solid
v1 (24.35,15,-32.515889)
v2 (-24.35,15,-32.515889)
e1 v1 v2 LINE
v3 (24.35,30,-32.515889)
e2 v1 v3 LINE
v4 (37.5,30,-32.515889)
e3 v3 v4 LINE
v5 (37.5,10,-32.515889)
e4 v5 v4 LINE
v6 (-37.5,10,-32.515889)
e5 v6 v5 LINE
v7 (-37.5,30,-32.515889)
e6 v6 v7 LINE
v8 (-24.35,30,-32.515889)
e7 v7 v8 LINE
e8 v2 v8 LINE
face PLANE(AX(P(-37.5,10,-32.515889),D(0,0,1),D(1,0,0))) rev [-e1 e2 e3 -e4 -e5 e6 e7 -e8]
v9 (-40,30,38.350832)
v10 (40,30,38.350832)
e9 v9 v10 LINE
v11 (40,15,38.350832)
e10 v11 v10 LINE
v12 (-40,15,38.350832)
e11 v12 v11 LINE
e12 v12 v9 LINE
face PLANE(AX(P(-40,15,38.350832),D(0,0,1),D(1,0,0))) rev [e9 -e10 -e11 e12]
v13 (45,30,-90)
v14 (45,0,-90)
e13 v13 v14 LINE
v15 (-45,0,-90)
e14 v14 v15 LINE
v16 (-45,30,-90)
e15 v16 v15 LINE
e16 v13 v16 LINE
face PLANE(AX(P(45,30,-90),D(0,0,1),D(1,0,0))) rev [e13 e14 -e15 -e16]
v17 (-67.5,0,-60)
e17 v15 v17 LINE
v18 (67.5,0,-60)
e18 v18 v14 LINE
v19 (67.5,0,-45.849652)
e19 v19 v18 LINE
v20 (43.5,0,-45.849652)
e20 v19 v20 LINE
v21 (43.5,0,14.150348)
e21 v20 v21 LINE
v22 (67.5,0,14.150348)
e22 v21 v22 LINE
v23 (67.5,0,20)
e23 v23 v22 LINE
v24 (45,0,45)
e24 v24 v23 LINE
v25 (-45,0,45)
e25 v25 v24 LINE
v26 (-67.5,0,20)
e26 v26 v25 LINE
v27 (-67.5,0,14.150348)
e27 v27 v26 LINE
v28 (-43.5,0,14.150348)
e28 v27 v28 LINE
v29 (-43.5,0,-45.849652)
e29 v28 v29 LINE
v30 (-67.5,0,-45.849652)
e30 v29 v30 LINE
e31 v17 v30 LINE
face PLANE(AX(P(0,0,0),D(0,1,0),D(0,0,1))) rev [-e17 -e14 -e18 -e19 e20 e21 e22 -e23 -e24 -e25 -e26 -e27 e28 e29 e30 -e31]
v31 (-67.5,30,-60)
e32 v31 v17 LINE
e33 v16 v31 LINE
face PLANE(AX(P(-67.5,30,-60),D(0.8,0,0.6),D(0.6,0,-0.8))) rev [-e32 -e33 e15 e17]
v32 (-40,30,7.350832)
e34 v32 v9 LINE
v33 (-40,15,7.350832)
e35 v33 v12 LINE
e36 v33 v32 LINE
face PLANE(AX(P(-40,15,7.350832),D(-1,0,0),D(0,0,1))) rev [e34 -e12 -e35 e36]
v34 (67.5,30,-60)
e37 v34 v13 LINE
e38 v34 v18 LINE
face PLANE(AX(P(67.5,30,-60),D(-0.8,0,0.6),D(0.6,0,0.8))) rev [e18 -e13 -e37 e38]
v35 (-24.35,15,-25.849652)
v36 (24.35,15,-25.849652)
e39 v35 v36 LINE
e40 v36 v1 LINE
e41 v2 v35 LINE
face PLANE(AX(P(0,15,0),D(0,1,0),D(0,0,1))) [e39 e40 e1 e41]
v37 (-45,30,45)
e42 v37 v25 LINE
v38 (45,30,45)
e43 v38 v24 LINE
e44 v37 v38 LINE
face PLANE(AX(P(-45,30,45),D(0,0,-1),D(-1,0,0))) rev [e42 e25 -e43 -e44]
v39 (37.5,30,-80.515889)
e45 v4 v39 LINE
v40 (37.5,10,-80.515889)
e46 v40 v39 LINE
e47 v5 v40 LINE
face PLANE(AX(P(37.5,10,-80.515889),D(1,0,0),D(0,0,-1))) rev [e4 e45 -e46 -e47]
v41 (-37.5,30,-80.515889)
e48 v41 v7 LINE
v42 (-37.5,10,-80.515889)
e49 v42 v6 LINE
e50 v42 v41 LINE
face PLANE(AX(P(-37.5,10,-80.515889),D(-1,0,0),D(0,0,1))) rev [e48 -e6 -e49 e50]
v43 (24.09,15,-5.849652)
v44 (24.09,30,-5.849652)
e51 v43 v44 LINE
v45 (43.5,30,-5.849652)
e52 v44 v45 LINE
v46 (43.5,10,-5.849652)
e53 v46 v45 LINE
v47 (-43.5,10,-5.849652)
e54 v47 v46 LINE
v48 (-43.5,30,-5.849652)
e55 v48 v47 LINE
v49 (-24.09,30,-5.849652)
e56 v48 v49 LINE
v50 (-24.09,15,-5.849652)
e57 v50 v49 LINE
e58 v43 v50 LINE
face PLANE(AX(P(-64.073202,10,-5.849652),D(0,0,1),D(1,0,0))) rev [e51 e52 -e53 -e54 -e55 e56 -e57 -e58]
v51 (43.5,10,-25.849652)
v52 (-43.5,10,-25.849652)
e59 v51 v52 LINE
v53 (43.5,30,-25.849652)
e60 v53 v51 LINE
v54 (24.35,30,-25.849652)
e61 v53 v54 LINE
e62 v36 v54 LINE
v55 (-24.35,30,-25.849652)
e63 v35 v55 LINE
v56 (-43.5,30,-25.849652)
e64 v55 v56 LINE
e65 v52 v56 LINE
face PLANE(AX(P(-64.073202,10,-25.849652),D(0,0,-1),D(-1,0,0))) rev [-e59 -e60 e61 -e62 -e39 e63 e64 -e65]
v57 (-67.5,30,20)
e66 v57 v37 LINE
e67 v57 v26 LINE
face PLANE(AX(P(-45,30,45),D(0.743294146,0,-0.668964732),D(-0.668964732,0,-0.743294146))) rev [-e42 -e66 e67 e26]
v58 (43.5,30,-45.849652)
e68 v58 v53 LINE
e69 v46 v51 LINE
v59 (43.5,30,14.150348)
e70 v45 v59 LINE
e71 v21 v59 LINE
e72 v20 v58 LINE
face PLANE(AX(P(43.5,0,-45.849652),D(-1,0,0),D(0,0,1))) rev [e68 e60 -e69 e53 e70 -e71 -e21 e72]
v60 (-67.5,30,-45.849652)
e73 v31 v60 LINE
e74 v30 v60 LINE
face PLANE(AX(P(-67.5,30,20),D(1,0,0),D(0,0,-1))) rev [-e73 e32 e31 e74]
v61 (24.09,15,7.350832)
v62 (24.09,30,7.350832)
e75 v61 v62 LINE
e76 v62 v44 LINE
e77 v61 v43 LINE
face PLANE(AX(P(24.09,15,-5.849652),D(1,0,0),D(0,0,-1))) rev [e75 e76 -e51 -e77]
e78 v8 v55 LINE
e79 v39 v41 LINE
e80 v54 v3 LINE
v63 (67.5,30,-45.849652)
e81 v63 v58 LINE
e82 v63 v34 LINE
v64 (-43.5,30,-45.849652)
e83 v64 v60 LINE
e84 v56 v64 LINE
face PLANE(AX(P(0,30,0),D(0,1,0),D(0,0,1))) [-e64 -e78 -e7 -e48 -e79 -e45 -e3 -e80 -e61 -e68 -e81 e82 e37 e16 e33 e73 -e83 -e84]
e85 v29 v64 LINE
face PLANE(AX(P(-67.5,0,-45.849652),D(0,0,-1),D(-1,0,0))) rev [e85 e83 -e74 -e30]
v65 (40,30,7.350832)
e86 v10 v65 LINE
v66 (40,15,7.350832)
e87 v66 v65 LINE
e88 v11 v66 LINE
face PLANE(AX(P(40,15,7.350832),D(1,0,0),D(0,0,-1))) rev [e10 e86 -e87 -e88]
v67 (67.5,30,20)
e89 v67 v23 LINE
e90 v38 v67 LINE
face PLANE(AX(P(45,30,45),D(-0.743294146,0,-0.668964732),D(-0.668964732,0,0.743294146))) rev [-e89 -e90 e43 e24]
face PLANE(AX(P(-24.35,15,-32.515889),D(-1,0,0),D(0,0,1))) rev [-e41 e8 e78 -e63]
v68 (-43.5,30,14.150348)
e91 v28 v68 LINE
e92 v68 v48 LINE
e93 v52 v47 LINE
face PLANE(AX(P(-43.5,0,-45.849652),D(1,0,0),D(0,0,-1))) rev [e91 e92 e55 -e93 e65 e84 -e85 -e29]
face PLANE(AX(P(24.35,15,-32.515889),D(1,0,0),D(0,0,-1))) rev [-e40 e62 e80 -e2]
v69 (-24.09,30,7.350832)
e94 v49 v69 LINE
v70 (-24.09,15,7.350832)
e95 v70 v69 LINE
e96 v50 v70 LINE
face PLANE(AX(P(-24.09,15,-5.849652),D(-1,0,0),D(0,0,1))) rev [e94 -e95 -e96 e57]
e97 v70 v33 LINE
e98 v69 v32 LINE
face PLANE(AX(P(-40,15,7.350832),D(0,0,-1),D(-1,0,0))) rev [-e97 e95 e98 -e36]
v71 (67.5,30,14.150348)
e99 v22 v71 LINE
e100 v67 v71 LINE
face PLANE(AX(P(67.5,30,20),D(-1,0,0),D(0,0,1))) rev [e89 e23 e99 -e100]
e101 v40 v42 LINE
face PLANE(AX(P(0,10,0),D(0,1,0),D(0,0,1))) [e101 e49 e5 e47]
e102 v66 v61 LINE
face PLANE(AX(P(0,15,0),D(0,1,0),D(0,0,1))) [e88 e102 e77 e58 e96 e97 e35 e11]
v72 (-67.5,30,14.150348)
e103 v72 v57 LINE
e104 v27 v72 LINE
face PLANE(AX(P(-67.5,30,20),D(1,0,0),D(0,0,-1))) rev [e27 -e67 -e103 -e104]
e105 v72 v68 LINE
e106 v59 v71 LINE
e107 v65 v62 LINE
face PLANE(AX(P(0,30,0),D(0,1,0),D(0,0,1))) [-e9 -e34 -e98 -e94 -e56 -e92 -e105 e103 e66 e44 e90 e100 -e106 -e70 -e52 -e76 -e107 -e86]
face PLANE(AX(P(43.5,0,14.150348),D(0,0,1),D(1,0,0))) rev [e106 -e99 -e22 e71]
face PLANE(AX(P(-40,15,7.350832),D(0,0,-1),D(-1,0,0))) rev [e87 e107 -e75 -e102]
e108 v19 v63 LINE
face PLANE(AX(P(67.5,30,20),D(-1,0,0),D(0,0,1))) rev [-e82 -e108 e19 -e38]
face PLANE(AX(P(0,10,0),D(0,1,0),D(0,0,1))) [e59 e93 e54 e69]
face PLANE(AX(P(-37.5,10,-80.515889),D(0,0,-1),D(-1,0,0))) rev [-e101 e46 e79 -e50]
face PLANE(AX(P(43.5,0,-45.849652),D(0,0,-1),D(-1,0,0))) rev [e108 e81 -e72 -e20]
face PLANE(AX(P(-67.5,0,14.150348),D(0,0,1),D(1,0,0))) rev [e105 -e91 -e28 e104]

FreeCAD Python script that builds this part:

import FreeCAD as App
import Part
import Sketcher


def add_polygon(sketch, points):
    """Adds a closed chain of lines whose ends are joined by coincident constraints."""
    first, n = sketch.GeometryCount, len(points)
    for a, b in zip(points, points[1:] + points[:1]):
        sketch.addGeometry(Part.LineSegment(App.Vector(*a, 0), App.Vector(*b, 0)), False)
    for i in range(n):
        sketch.addConstraint(Sketcher.Constraint("Coincident", first + i, 2, first + (i + 1) % n, 1))

doc = App.newDocument("Part")
body = doc.addObject("PartDesign::Body", "Body")

# Sketch on XZ plane
sketch1 = body.newObject("Sketcher::SketchObject", "Sketch")
sketch1.AttachmentSupport = (doc.getObject("XZ_Plane"), [""])
sketch1.MapMode = "FlatFace"
add_polygon(sketch1, [(-45, 45), (45, 45), (68, 20), (68, -60), (45, -90), (-45, -90), (-68, -60), (-68, 20)])  # lines 0-7
sketch1.addConstraint(Sketcher.Constraint("Horizontal", 0))
sketch1.addConstraint(Sketcher.Constraint("Vertical", 2))
sketch1.addConstraint(Sketcher.Constraint("Horizontal", 4))
sketch1.addConstraint(Sketcher.Constraint("Vertical", 6))
sketch1.addConstraint(Sketcher.Constraint("Symmetric", 2, 2, 5, 2, -2))
sketch1.addConstraint(Sketcher.Constraint("Horizontal", 1, 2, 6, 2))
sketch1.addConstraint(Sketcher.Constraint("Vertical", 0, 2, 3, 2))
sketch1.addConstraint(Sketcher.Constraint("Vertical", 4, 2, 7, 2))
sketch1.addConstraint(Sketcher.Constraint("Equal", 3, 5))
sketch1.addConstraint(Sketcher.Constraint("DistanceX", 0, 1, 0, 2, 90.0))
sketch1.addConstraint(Sketcher.Constraint("DistanceY", 2, 2, 2, 1, 80.0))
sketch1.addConstraint(Sketcher.Constraint("DistanceY", -1, 1, 0, 2, 45.0))
sketch1.addConstraint(Sketcher.Constraint("DistanceY", -1, 1, 1, 2, 20.0))
sketch1.addConstraint(Sketcher.Constraint("DistanceY", 3, 2, -1, 1, 90.0))
sketch1.addConstraint(Sketcher.Constraint("DistanceX", 5, 2, 2, 2, 135.0))
pad1 = body.newObject("PartDesign::Pad", "Pad")
pad1.Profile = sketch1
pad1.Length = 30
pad1.Reversed = True

# Sketch on XZ plane
sketch2 = body.newObject("Sketcher::SketchObject", "Sketch001")
sketch2.AttachmentSupport = (doc.getObject("XZ_Plane"), [""])
sketch2.MapMode = "FlatFace"
sketch2.AttachmentOffset = App.Placement(App.Vector(0, 0, -30), App.Rotation())
add_polygon(sketch2, [(-68, -46), (-68, 14), (-44, 14), (-44, -46)])  # lines 0-3
add_polygon(sketch2, [(44, -46), (44, 14), (68, 14), (68, -46)])  # lines 4-7
sketch2.addConstraint(Sketcher.Constraint("Vertical", 0))
sketch2.addConstraint(Sketcher.Constraint("Horizontal", 1))
sketch2.addConstraint(Sketcher.Constraint("Vertical", 2))
sketch2.addConstraint(Sketcher.Constraint("Horizontal", 3))
sketch2.addConstraint(Sketcher.Constraint("Vertical", 4))
sketch2.addConstraint(Sketcher.Constraint("Horizontal", 5))
sketch2.addConstraint(Sketcher.Constraint("Vertical", 6))
sketch2.addConstraint(Sketcher.Constraint("Horizontal", 7))
sketch2.addConstraint(Sketcher.Constraint("Symmetric", 1, 2, 4, 2, -2))
sketch2.addConstraint(Sketcher.Constraint("Symmetric", 3, 2, 6, 2, -2))
sketch2.addConstraint(Sketcher.Constraint("DistanceX", 1, 1, 1, 2, 24.0))
sketch2.addConstraint(Sketcher.Constraint("DistanceY", 0, 1, 0, 2, 60.0))
sketch2.addConstraint(Sketcher.Constraint("DistanceX", 1, 2, 4, 2, 87.0))
sketch2.addConstraint(Sketcher.Constraint("DistanceY", -1, 1, 0, 2, 14.150348))
pocket1 = body.newObject("PartDesign::Pocket", "Pocket")
pocket1.Profile = sketch2
pocket1.Type = "ThroughAll"
pocket1.Midplane = True

# Sketch on XZ plane
sketch3 = body.newObject("Sketcher::SketchObject", "Sketch002")
sketch3.AttachmentSupport = (doc.getObject("XZ_Plane"), [""])
sketch3.MapMode = "FlatFace"
sketch3.AttachmentOffset = App.Placement(App.Vector(0, 0, -30), App.Rotation())
add_polygon(sketch3, [(-64, -26), (-64, -6), (58, -6), (58, -26)])  # lines 0-3
sketch3.addConstraint(Sketcher.Constraint("Vertical", 0))
sketch3.addConstraint(Sketcher.Constraint("Horizontal", 1))
sketch3.addConstraint(Sketcher.Constraint("Vertical", 2))
sketch3.addConstraint(Sketcher.Constraint("Horizontal", 3))
sketch3.addConstraint(Sketcher.Constraint("DistanceY", 0, 1, 0, 2, 20.0))
sketch3.addConstraint(Sketcher.Constraint("DistanceX", 1, 1, 1, 2, 122.227572))
sketch3.addConstraint(Sketcher.Constraint("DistanceX", 0, 2, -1, 1, 64.073202))
sketch3.addConstraint(Sketcher.Constraint("DistanceY", 0, 2, -1, 1, 5.849652))
pocket2 = body.newObject("PartDesign::Pocket", "Pocket001")
pocket2.Profile = sketch3
pocket2.Length = 20
pocket2.Reversed = True

# Sketch on XZ plane
sketch4 = body.newObject("Sketcher::SketchObject", "Sketch003")
sketch4.AttachmentSupport = (doc.getObject("XZ_Plane"), [""])
sketch4.MapMode = "FlatFace"
sketch4.AttachmentOffset = App.Placement(App.Vector(0, 0, -30), App.Rotation())
add_polygon(sketch4, [(-40, 7), (-40, 38), (40, 38), (40, 7)])  # lines 0-3
sketch4.addConstraint(Sketcher.Constraint("Vertical", 0))
sketch4.addConstraint(Sketcher.Constraint("Horizontal", 1))
sketch4.addConstraint(Sketcher.Constraint("Vertical", 2))
sketch4.addConstraint(Sketcher.Constraint("Horizontal", 3))
sketch4.addConstraint(Sketcher.Constraint("DistanceX", 1, 1, 1, 2, 80.0))
sketch4.addConstraint(Sketcher.Constraint("DistanceY", 0, 1, 0, 2, 31.0))
sketch4.addConstraint(Sketcher.Constraint("DistanceX", 0, 2, -1, 1, 40.0))
sketch4.addConstraint(Sketcher.Constraint("DistanceY", -1, 1, 0, 2, 38.350832))
pocket3 = body.newObject("PartDesign::Pocket", "Pocket002")
pocket3.Profile = sketch4
pocket3.Length = 15
pocket3.Reversed = True

# Sketch on XZ plane
sketch5 = body.newObject("Sketcher::SketchObject", "Sketch004")
sketch5.AttachmentSupport = (doc.getObject("XZ_Plane"), [""])
sketch5.MapMode = "FlatFace"
sketch5.AttachmentOffset = App.Placement(App.Vector(0, 0, -30), App.Rotation())
add_polygon(sketch5, [(-24, -6), (-24, 7), (24, 7), (24, -6)])  # lines 0-3
sketch5.addConstraint(Sketcher.Constraint("Vertical", 0))
sketch5.addConstraint(Sketcher.Constraint("Horizontal", 1))
sketch5.addConstraint(Sketcher.Constraint("Vertical", 2))
sketch5.addConstraint(Sketcher.Constraint("Horizontal", 3))
sketch5.addConstraint(Sketcher.Constraint("DistanceX", 1, 1, 1, 2, 48.18))
sketch5.addConstraint(Sketcher.Constraint("DistanceX", 0, 2, -1, 1, 24.09))
sketch5.addConstraint(Sketcher.Constraint("DistanceY", 0, 1, 0, 2, 13.200484))
sketch5.addConstraint(Sketcher.Constraint("DistanceY", 2, 2, -1, 1, 5.849652))
pocket4 = body.newObject("PartDesign::Pocket", "Pocket003")
pocket4.Profile = sketch5
pocket4.Length = 15
pocket4.Reversed = True

# Sketch on XZ plane
sketch6 = body.newObject("Sketcher::SketchObject", "Sketch005")
sketch6.AttachmentSupport = (doc.getObject("XZ_Plane"), [""])
sketch6.MapMode = "FlatFace"
sketch6.AttachmentOffset = App.Placement(App.Vector(0, 0, -30), App.Rotation())
add_polygon(sketch6, [(-38, -81), (-38, -33), (38, -33), (38, -81)])  # lines 0-3
sketch6.addConstraint(Sketcher.Constraint("Vertical", 0))
sketch6.addConstraint(Sketcher.Constraint("Horizontal", 1))
sketch6.addConstraint(Sketcher.Constraint("Vertical", 2))
sketch6.addConstraint(Sketcher.Constraint("Horizontal", 3))
sketch6.addConstraint(Sketcher.Constraint("DistanceX", 1, 1, 1, 2, 75.0))
sketch6.addConstraint(Sketcher.Constraint("DistanceY", 0, 1, 0, 2, 48.0))
sketch6.addConstraint(Sketcher.Constraint("DistanceX", 0, 2, -1, 1, 37.5))
sketch6.addConstraint(Sketcher.Constraint("DistanceY", 0, 2, -1, 1, 32.515889))
pocket5 = body.newObject("PartDesign::Pocket", "Pocket004")
pocket5.Profile = sketch6
pocket5.Length = 20
pocket5.Reversed = True

# Sketch on XZ plane
sketch7 = body.newObject("Sketcher::SketchObject", "Sketch006")
sketch7.AttachmentSupport = (doc.getObject("XZ_Plane"), [""])
sketch7.MapMode = "FlatFace"
sketch7.AttachmentOffset = App.Placement(App.Vector(0, 0, -30), App.Rotation())
add_polygon(sketch7, [(-24, -33), (-24, -26), (24, -26), (24, -33)])  # lines 0-3
sketch7.addConstraint(Sketcher.Constraint("Vertical", 0))
sketch7.addConstraint(Sketcher.Constraint("Horizontal", 1))
sketch7.addConstraint(Sketcher.Constraint("Vertical", 2))
sketch7.addConstraint(Sketcher.Constraint("Horizontal", 3))
sketch7.addConstraint(Sketcher.Constraint("DistanceX", 1, 1, 1, 2, 48.7))
sketch7.addConstraint(Sketcher.Constraint("DistanceX", 0, 2, -1, 1, 24.35))
sketch7.addConstraint(Sketcher.Constraint("DistanceY", 0, 1, 0, 2, 6.666237))
sketch7.addConstraint(Sketcher.Constraint("DistanceY", 0, 2, -1, 1, 25.849652))
pocket6 = body.newObject("PartDesign::Pocket", "Pocket005")
pocket6.Profile = sketch7
pocket6.Length = 15
pocket6.Reversed = True

doc.recompute()
